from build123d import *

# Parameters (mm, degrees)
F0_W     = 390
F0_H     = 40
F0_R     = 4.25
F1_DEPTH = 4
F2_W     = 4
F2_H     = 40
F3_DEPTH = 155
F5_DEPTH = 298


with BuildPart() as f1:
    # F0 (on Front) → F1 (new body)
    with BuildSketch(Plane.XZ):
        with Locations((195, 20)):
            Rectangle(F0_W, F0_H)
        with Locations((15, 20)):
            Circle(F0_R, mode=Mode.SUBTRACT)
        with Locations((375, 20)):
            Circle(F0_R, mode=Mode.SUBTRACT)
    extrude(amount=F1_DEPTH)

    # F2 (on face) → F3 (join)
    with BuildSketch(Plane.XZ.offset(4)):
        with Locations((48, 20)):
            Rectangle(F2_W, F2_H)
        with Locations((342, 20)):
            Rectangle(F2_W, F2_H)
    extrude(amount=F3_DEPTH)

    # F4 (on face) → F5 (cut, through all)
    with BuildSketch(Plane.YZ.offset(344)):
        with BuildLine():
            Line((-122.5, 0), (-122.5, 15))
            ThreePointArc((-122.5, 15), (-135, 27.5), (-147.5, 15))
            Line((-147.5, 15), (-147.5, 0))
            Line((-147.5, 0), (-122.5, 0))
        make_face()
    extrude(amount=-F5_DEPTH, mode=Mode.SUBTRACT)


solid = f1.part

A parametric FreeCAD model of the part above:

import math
import FreeCAD as App
import Part
import Sketcher


def add_polygon(sketch, points):
    """Adds a closed chain of lines whose ends are joined by coincident constraints."""
    first, n = sketch.GeometryCount, len(points)
    for a, b in zip(points, points[1:] + points[:1]):
        sketch.addGeometry(Part.LineSegment(App.Vector(*a, 0), App.Vector(*b, 0)), False)
    for i in range(n):
        sketch.addConstraint(Sketcher.Constraint("Coincident", first + i, 2, first + (i + 1) % n, 1))

doc = App.newDocument("Part")
params = doc.addObject("Spreadsheet::Sheet", "Params")
for row, (alias, value) in enumerate([
    ("sketch1_diameter", "8.5 mm"),
    ("sketch1_width", "390 mm"),
    ("sketch1_height", "40 mm"),
    ("pad1_length", "4 mm"),
    ("sketch2_width", "4 mm"),
    ("sketch2_height", "40 mm"),
    ("pad2_length", "155 mm"),
    ("sketch3_radius", "12.5 mm"),
    ("sketch3_height", "15 mm"),
], start=1):
    params.set(f"A{row}", alias)
    params.set(f"B{row}", "=" + value)
    params.setAlias(f"B{row}", alias)

body = doc.addObject("PartDesign::Body", "Body")

# Sketch on XZ plane
sketch1 = doc.addObject("Sketcher::SketchObject", "Sketch")
body.addObject(sketch1)
sketch1.AttachmentSupport = (doc.XZ_Plane, [""])
sketch1.MapMode = "FlatFace"
add_polygon(sketch1, [(0, 40), (0, 0), (390, 0), (390, 40)])  # lines 0-3
sketch1.addGeometry(Part.Circle(App.Vector(15, 20, 0), App.Vector(0, 0, 1), 4.2), False)  # 4
sketch1.addGeometry(Part.Circle(App.Vector(375, 20, 0), App.Vector(0, 0, 1), 4.2), False)  # 5
sketch1.addConstraint([
    Sketcher.Constraint("Vertical", 0),
    Sketcher.Constraint("Horizontal", 1),
    Sketcher.Constraint("Vertical", 2),
    Sketcher.Constraint("Horizontal", 3),
    Sketcher.Constraint("Coincident", 0, 2, -1, 1),
    Sketcher.Constraint("Equal", 4, 5),
    Sketcher.Constraint("Horizontal", 4, 3, 5, 3),
    Sketcher.Constraint("Diameter", 4, 8.5),
    Sketcher.Constraint("DistanceX", 1, 1, 1, 2, 390.0),
    Sketcher.Constraint("DistanceY", 0, 2, 0, 1, 40.0),
    Sketcher.Constraint("DistanceX", -1, 1, 4, 3, 15.0),
    Sketcher.Constraint("DistanceY", -1, 1, 4, 3, 20.0),
    Sketcher.Constraint("DistanceX", -1, 1, 5, 3, 375.0),
])
sketch1.setExpression("Constraints[11]", "Params.sketch1_diameter")
sketch1.setExpression("Constraints[12]", "Params.sketch1_width")
sketch1.setExpression("Constraints[13]", "Params.sketch1_height")
pad1 = doc.addObject("PartDesign::Pad", "Pad")
body.addObject(pad1)
pad1.Profile = sketch1
pad1.setExpression("Length", "Params.pad1_length")

# Sketch on XZ plane
sketch2 = doc.addObject("Sketcher::SketchObject", "Sketch001")
body.addObject(sketch2)
sketch2.AttachmentSupport = (doc.XZ_Plane, [""])
sketch2.MapMode = "FlatFace"
sketch2.AttachmentOffset = App.Placement(App.Vector(0, 0, 4), App.Rotation())
add_polygon(sketch2, [(46, 40), (46, 0), (50, 0), (50, 40)])  # lines 0-3
add_polygon(sketch2, [(340, 40), (340, 0), (344, 0), (344, 40)])  # lines 4-7
sketch2.addConstraint([
    Sketcher.Constraint("Vertical", 0),
    Sketcher.Constraint("Horizontal", 1),
    Sketcher.Constraint("Vertical", 2),
    Sketcher.Constraint("Horizontal", 3),
    Sketcher.Constraint("Vertical", 4),
    Sketcher.Constraint("Horizontal", 5),
    Sketcher.Constraint("Vertical", 6),
    Sketcher.Constraint("Horizontal", 7),
    Sketcher.Constraint("PointOnObject", 0, 2, -1),
    Sketcher.Constraint("PointOnObject", 4, 2, -1),
    Sketcher.Constraint("Horizontal", 3, 2, 6, 2),
    Sketcher.Constraint("Equal", 3, 5),
    Sketcher.Constraint("DistanceX", 1, 1, 1, 2, 4.0),
    Sketcher.Constraint("DistanceY", 0, 2, 0, 1, 40.0),
    Sketcher.Constraint("DistanceX", -1, 1, 0, 2, 46.0),
    Sketcher.Constraint("DistanceX", -1, 1, 4, 2, 340.0),
])
sketch2.setExpression("Constraints[20]", "Params.sketch2_width")
sketch2.setExpression("Constraints[21]", "Params.sketch2_height")
pad2 = doc.addObject("PartDesign::Pad", "Pad001")
body.addObject(pad2)
pad2.Profile = sketch2
pad2.setExpression("Length", "Params.pad2_length")

# Sketch on YZ plane
sketch3 = doc.addObject("Sketcher::SketchObject", "Sketch002")
body.addObject(sketch3)
sketch3.AttachmentSupport = (doc.YZ_Plane, [""])
sketch3.MapMode = "FlatFace"
sketch3.AttachmentOffset = App.Placement(App.Vector(0, 0, 344), App.Rotation())
sketch3.addGeometry([
    Part.LineSegment(App.Vector(-122, 0, 0), App.Vector(-122, 15, 0)),
    Part.ArcOfCircle(Part.Circle(App.Vector(-135, 15, 0), App.Vector(0, 0, 1), 12), math.radians(0), math.radians(180)),
    Part.LineSegment(App.Vector(-148, 15, 0), App.Vector(-148, 0, 0)),
    Part.LineSegment(App.Vector(-148, 0, 0), App.Vector(-122, 0, 0)),
], False)
sketch3.addConstraint([
    Sketcher.Constraint("Tangent", 0, 2, 1, 1),
    Sketcher.Constraint("Tangent", 1, 2, 2, 1),
    Sketcher.Constraint("Coincident", 2, 2, 3, 1),
    Sketcher.Constraint("Coincident", 3, 2, 0, 1),
    Sketcher.Constraint("Vertical", 0),
    Sketcher.Constraint("Vertical", 2),
    Sketcher.Constraint("Horizontal", 3),
    Sketcher.Constraint("PointOnObject", 2, 2, -1),
    Sketcher.Constraint("Radius", 1, 12.5),
    Sketcher.Constraint("DistanceY", 0, 1, 0, 2, 15.0),
    Sketcher.Constraint("DistanceX", 1, 3, -1, 1, 135.0),
])
sketch3.setExpression("Constraints[8]", "Params.sketch3_radius")
sketch3.setExpression("Constraints[9]", "Params.sketch3_height")
pocket1 = doc.addObject("PartDesign::Pocket", "Pocket")
body.addObject(pocket1)
pocket1.Profile = sketch3
pocket1.Type = "ThroughAll"

doc.recompute()
